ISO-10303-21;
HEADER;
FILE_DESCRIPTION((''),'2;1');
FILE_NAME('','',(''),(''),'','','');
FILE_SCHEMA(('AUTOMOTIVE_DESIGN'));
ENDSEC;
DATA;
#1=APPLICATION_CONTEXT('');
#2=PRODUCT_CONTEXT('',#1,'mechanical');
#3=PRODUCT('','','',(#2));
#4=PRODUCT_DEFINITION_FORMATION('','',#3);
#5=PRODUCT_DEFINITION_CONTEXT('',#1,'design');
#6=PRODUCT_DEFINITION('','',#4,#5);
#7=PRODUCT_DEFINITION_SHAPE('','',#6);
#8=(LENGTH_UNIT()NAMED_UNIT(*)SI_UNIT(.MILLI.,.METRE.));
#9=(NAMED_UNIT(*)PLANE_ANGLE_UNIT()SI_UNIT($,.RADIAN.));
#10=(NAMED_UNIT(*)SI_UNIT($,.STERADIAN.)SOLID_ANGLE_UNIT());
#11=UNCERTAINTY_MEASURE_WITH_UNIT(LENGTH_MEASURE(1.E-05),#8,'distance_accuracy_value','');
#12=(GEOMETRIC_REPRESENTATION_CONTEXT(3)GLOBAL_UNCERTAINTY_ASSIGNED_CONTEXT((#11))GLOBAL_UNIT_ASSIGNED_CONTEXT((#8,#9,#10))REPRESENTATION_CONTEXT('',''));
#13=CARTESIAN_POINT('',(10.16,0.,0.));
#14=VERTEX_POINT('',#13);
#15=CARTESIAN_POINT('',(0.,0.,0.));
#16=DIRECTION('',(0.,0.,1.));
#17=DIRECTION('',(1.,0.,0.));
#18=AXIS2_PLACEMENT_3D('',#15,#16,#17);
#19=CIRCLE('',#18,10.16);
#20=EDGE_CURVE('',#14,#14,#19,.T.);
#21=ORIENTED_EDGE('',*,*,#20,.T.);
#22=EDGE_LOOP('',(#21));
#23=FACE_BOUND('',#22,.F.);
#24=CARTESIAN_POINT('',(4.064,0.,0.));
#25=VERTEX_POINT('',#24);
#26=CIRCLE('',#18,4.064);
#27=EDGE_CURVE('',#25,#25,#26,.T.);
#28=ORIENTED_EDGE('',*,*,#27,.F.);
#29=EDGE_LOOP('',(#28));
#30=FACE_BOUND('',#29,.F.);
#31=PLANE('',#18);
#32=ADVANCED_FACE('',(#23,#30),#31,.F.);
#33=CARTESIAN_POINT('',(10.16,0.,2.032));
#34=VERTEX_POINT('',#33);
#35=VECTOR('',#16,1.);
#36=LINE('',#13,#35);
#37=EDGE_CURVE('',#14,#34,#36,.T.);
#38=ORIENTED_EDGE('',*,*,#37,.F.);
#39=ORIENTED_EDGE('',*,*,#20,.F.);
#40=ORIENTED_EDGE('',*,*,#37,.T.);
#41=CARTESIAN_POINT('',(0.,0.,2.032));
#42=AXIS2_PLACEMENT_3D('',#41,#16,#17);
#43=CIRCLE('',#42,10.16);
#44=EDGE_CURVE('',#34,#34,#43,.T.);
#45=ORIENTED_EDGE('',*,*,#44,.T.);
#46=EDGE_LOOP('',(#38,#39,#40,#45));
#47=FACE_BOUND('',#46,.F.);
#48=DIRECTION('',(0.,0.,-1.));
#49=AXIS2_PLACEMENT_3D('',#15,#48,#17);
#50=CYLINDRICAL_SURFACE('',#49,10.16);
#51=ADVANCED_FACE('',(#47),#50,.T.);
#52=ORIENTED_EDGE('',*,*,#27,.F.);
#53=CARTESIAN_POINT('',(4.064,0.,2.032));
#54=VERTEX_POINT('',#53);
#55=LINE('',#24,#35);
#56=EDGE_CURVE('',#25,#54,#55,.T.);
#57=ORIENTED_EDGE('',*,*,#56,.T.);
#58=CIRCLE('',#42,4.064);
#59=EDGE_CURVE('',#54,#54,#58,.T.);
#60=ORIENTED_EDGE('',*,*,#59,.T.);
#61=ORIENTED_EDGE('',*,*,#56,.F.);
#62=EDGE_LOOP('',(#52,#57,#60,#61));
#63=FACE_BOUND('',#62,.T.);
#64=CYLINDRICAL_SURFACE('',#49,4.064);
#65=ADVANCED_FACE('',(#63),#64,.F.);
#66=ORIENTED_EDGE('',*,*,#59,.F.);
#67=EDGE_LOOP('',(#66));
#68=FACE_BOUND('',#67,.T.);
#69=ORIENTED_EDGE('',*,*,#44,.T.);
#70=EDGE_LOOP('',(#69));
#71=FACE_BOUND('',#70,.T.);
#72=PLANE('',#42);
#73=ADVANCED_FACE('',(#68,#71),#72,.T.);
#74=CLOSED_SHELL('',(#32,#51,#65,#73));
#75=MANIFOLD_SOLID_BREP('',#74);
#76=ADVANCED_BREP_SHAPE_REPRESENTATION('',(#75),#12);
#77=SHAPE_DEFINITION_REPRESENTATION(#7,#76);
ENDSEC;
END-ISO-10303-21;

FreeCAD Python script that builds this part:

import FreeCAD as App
import Part
import Sketcher
Q = App.Units.Quantity

doc = App.newDocument("Part")
params = doc.addObject("Spreadsheet::Sheet", "Params")
for row, (alias, value) in enumerate([
    ("sketch1_diameter", "0.8 in"),
    ("sketch1_diameter2", "0.32 in"),
    ("pad1_length", "0.08 in"),
], start=1):
    params.set(f"A{row}", alias)
    params.set(f"B{row}", "=" + value)
    params.setAlias(f"B{row}", alias)

body = doc.addObject("PartDesign::Body", "Body")

sketch1 = body.newObject("Sketcher::SketchObject", "Sketch")
sketch1.AttachmentSupport = (doc.getObject("XY_Plane"), [""])
sketch1.MapMode = "FlatFace"
sketch1.addGeometry([
    Part.Circle(App.Vector(0, 0, 0), App.Vector(0, 0, 1), 10.2),
    Part.Circle(App.Vector(0, 0, 0), App.Vector(0, 0, 1), 4.1),
], False)
sketch1.addConstraint([
    Sketcher.Constraint("Coincident", 0, 3, -1, 1),
    Sketcher.Constraint("Coincident", 1, 3, -1, 1),
    Sketcher.Constraint("Diameter", 0, Q("0.8 in")),
    Sketcher.Constraint("Diameter", 1, Q("0.32 in")),
])
sketch1.setExpression("Constraints[2]", "Params.sketch1_diameter")
sketch1.setExpression("Constraints[3]", "Params.sketch1_diameter2")
pad1 = body.newObject("PartDesign::Pad", "Pad")
pad1.Profile = sketch1
pad1.setExpression("Length", "Params.pad1_length")

doc.recompute()
